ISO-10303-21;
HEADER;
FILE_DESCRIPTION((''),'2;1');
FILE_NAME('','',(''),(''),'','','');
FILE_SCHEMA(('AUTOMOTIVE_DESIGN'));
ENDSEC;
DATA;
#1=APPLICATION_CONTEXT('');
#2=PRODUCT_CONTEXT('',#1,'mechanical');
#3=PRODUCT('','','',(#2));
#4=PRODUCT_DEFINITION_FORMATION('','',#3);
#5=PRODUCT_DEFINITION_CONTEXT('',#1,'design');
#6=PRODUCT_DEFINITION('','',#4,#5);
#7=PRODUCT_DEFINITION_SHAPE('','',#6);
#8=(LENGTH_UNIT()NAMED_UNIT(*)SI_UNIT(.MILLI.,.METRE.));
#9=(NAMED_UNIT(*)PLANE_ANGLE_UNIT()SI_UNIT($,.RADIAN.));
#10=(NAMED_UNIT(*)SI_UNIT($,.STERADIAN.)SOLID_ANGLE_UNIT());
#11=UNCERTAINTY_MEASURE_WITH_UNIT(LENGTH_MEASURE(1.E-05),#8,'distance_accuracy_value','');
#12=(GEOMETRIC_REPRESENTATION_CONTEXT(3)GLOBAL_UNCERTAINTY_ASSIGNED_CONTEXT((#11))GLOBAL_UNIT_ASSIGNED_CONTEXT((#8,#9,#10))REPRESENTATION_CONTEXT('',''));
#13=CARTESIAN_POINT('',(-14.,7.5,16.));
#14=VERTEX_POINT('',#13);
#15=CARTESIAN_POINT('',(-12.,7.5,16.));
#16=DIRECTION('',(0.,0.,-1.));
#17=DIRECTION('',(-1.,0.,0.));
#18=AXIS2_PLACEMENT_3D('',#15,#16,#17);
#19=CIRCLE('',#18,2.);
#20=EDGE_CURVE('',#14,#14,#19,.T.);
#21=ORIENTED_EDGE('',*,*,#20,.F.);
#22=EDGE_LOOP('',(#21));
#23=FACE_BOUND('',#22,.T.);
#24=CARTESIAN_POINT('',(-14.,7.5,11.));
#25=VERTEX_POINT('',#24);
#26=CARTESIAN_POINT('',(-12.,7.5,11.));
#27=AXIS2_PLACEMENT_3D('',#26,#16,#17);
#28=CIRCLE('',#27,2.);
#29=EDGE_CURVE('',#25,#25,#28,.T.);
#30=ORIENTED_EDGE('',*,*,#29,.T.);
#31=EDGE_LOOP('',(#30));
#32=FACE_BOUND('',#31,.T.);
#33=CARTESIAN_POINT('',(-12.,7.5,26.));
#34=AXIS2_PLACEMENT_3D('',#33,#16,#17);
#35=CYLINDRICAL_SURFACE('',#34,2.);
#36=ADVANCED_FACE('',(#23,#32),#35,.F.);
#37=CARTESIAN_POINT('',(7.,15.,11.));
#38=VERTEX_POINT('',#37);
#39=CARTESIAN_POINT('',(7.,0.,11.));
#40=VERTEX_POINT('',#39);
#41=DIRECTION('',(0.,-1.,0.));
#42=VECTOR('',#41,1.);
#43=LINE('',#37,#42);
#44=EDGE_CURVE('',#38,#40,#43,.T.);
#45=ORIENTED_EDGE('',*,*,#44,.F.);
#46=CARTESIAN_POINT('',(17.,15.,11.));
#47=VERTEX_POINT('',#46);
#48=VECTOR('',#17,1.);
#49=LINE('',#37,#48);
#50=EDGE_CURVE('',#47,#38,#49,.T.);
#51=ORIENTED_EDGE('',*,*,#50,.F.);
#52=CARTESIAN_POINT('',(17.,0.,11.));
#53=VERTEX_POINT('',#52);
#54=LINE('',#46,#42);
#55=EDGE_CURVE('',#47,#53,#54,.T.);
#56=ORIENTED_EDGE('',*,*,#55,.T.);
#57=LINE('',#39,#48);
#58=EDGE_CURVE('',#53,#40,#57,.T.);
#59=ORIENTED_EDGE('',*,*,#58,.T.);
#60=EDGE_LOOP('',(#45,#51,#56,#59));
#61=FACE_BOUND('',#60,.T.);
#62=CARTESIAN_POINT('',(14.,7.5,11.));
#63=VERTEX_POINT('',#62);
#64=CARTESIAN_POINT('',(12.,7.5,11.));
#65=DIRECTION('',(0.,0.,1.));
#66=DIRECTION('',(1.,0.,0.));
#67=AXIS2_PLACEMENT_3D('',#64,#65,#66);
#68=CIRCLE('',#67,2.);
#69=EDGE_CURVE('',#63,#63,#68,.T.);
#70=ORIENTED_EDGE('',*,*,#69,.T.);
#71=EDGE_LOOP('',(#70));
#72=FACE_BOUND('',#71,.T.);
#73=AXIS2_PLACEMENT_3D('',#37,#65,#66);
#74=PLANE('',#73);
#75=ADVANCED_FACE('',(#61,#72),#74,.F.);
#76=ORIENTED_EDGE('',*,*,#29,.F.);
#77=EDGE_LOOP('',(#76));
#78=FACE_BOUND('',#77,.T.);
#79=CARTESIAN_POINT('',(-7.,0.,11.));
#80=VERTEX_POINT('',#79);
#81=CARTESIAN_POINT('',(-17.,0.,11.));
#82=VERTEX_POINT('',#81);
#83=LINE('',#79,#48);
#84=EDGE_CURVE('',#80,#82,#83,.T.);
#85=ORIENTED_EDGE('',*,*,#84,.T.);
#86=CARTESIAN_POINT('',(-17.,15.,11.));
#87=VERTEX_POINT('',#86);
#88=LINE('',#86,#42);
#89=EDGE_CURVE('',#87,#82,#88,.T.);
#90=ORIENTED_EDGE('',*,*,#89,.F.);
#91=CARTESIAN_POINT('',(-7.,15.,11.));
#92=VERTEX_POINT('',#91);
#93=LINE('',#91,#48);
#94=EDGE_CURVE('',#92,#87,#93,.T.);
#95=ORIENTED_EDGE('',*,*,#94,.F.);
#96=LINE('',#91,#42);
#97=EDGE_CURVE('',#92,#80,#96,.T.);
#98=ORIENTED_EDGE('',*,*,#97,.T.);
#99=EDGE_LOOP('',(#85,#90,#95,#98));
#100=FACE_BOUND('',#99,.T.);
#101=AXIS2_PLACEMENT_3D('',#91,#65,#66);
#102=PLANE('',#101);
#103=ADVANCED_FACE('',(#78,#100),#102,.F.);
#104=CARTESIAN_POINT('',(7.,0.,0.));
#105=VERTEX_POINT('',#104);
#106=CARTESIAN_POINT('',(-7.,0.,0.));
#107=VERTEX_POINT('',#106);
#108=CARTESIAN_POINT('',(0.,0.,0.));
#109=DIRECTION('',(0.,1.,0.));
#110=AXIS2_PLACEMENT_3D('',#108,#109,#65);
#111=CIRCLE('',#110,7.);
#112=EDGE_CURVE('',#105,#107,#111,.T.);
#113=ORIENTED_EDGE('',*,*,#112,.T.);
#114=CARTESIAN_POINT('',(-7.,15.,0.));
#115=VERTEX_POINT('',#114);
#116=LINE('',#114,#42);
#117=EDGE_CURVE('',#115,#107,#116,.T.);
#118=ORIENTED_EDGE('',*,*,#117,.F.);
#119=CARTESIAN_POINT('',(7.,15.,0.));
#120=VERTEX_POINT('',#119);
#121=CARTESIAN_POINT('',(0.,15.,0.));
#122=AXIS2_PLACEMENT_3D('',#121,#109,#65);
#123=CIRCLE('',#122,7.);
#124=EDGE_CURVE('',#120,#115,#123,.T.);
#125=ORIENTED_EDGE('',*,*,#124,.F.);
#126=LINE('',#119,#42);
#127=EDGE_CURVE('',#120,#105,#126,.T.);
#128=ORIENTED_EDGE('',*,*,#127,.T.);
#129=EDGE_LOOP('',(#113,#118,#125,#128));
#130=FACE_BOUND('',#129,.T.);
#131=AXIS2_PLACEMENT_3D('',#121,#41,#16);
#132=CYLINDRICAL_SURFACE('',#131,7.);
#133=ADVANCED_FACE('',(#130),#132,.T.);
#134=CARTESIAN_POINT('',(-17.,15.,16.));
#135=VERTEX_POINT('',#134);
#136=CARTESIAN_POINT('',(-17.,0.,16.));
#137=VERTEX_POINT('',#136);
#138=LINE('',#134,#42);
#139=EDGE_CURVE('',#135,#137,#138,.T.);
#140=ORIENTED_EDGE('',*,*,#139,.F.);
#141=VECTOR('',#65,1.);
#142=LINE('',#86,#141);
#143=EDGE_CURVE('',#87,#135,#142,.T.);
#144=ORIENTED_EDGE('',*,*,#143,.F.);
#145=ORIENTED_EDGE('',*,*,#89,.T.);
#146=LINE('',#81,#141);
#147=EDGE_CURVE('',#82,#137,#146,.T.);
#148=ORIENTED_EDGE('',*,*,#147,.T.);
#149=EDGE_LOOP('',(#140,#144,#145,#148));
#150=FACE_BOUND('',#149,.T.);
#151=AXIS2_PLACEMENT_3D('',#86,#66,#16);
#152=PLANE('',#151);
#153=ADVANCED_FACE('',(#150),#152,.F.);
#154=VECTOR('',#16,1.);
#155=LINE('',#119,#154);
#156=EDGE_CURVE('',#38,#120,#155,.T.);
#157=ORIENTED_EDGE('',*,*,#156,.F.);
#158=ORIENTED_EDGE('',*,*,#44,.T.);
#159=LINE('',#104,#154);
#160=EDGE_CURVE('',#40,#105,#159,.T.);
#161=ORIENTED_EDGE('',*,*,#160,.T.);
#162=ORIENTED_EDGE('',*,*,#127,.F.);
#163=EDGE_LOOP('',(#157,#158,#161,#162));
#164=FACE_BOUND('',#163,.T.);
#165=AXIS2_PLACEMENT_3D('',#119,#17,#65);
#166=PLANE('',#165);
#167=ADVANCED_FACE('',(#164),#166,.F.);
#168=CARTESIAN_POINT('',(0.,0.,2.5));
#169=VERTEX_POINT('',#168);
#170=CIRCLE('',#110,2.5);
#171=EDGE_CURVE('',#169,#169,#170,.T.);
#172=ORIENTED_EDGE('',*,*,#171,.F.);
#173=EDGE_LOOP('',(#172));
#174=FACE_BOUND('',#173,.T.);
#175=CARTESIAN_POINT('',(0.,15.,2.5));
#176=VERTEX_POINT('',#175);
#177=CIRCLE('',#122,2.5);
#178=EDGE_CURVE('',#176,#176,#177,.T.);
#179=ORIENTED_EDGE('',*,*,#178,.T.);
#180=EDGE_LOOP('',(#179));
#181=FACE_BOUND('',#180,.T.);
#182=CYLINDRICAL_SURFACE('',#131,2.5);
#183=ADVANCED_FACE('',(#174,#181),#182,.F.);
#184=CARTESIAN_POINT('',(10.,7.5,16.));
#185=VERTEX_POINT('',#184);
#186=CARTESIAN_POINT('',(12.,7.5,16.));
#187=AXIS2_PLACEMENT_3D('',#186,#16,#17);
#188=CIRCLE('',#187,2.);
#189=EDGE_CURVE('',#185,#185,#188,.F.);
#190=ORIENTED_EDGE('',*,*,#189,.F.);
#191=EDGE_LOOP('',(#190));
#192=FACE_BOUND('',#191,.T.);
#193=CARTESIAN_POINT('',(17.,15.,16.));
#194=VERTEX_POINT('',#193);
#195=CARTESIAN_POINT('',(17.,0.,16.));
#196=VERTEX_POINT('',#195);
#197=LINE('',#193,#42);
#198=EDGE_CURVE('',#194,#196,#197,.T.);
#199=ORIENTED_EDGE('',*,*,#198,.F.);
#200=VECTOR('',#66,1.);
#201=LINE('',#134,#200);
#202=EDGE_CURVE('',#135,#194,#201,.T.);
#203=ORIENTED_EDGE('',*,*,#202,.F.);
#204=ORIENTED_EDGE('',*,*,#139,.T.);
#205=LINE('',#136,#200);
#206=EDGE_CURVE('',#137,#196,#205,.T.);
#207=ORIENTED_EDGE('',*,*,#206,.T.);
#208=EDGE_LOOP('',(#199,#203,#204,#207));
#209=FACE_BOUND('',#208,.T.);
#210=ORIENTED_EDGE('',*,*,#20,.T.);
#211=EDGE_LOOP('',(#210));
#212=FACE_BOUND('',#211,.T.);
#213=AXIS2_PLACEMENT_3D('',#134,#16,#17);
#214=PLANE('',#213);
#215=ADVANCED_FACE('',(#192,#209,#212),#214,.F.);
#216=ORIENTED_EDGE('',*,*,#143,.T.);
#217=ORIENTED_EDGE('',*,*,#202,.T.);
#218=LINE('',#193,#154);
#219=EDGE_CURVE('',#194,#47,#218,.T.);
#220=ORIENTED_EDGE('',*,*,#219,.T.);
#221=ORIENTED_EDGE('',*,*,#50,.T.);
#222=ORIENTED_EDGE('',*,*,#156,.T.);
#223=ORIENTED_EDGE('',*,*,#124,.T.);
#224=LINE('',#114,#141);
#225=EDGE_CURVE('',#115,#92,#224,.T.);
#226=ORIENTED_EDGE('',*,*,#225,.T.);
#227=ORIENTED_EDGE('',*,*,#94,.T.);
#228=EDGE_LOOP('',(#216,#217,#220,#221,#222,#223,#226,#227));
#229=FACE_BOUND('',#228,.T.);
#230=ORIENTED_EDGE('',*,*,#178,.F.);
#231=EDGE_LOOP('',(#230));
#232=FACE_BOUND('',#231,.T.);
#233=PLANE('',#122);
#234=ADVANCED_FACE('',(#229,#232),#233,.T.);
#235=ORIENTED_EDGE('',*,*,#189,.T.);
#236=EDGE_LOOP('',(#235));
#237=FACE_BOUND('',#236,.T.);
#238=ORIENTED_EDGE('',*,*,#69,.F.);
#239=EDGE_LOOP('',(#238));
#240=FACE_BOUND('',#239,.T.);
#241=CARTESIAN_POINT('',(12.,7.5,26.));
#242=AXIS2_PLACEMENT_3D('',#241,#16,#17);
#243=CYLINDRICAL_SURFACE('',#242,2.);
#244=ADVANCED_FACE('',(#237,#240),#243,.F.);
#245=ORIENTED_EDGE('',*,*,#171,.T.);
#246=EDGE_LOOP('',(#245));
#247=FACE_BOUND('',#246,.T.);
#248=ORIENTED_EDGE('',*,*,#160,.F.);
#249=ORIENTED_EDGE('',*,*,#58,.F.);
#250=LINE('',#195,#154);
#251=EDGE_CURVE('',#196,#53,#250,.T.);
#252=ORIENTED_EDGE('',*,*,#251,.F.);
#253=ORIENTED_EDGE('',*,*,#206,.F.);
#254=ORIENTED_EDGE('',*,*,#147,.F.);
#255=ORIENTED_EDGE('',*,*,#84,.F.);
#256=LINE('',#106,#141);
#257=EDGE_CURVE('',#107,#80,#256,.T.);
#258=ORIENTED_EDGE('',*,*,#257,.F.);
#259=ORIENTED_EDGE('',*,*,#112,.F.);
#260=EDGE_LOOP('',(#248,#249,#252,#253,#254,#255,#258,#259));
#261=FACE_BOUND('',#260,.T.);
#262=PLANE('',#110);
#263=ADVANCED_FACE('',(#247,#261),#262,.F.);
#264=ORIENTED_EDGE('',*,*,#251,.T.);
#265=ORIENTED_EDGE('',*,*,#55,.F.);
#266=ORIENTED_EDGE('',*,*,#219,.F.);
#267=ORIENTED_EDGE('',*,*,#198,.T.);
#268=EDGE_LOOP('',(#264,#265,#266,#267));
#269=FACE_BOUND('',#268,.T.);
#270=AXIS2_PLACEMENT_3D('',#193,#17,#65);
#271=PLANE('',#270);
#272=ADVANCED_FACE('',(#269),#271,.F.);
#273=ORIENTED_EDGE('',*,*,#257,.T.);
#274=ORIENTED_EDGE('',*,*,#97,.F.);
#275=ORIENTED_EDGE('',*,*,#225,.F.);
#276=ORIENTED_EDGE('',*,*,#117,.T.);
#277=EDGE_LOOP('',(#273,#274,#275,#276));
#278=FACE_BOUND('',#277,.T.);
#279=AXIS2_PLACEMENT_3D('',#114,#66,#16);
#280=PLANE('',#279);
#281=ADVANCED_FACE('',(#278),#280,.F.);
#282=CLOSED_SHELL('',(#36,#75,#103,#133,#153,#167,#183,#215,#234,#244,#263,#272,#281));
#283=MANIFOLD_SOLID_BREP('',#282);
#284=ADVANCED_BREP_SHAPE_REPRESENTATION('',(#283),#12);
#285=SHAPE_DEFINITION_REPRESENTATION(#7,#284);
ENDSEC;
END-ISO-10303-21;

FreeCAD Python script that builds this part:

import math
import FreeCAD as App
import Part
import Sketcher

V = App.Vector
Q = App.Units.Quantity

doc = App.newDocument("Part")
body = doc.addObject("PartDesign::Body", "Body")

# Sketch on XZ plane
sketch1 = body.newObject("Sketcher::SketchObject", "Sketch")
sketch1.AttachmentSupport = (doc.getObject("XZ_Plane"), [""])
sketch1.MapMode = "FlatFace"
sketch1.addGeometry([
    Part.LineSegment(V(-7, 0, 0), V(-7, 11, 0)),  # 0
    Part.LineSegment(V(-7, 11, 0), V(-17, 11, 0)),  # 1
    Part.LineSegment(V(-17, 11, 0), V(-17, 16, 0)),  # 2
    Part.LineSegment(V(-17, 16, 0), V(17, 16, 0)),  # 3
    Part.LineSegment(V(17, 16, 0), V(17, 11, 0)),  # 4
    Part.LineSegment(V(17, 11, 0), V(7, 11, 0)),  # 5
    Part.LineSegment(V(7, 11, 0), V(7, 0, 0)),  # 6
    Part.ArcOfCircle(Part.Circle(V(0, 0, 0), V(0, 0, 1), 7), math.radians(180), math.radians(360)),  # 7
    Part.Circle(V(0, 0, 0), V(0, 0, 1), 2.5),  # 8
], False)
sketch1.addConstraint([
    Sketcher.Constraint("Coincident", 0, 2, 1, 1),
    Sketcher.Constraint("Coincident", 1, 2, 2, 1),
    Sketcher.Constraint("Coincident", 2, 2, 3, 1),
    Sketcher.Constraint("Coincident", 3, 2, 4, 1),
    Sketcher.Constraint("Coincident", 4, 2, 5, 1),
    Sketcher.Constraint("Coincident", 5, 2, 6, 1),
    Sketcher.Constraint("Tangent", 6, 2, 7, 2),
    Sketcher.Constraint("Tangent", 7, 1, 0, 1),
    Sketcher.Constraint("Vertical", 0),
    Sketcher.Constraint("Horizontal", 1),
    Sketcher.Constraint("Vertical", 2),
    Sketcher.Constraint("Horizontal", 3),
    Sketcher.Constraint("Vertical", 4),
    Sketcher.Constraint("Horizontal", 5),
    Sketcher.Constraint("Vertical", 6),
    Sketcher.Constraint("Coincident", 7, 3, -1, 1),
    Sketcher.Constraint("Coincident", 8, 3, -1, 1),
    Sketcher.Constraint("Symmetric", 1, 2, 4, 2, -2),
    Sketcher.Constraint("Diameter", 8, Q("5 mm")),
    Sketcher.Constraint("Radius", 7, Q("7 mm")),
    Sketcher.Constraint("DistanceX", 1, 2, 1, 1, Q("10 mm")),
    Sketcher.Constraint("DistanceY", 0, 1, 0, 2, Q("11 mm")),
    Sketcher.Constraint("DistanceY", 2, 1, 2, 2, Q("5 mm")),
])
pad1 = body.newObject("PartDesign::Pad", "Pad")
pad1.Profile = sketch1
pad1.Length = 15
pad1.Reversed = True

# Sketch on XY plane
sketch2 = body.newObject("Sketcher::SketchObject", "Sketch001")
sketch2.AttachmentSupport = (doc.getObject("XY_Plane"), [""])
sketch2.MapMode = "FlatFace"
sketch2.AttachmentOffset = App.Placement(V(0, 0, 11), App.Rotation())
sketch2.addGeometry(Part.Circle(V(-12, 7.5, 0), V(0, 0, 1), 2), False)
sketch2.addConstraint([
    Sketcher.Constraint("Diameter", 0, Q("4 mm")),
    Sketcher.Constraint("DistanceX", 0, 3, -1, 1, Q("12 mm")),
    Sketcher.Constraint("DistanceY", -1, 1, 0, 3, Q("7.5 mm")),
])
pocket1 = body.newObject("PartDesign::Pocket", "Pocket")
pocket1.Profile = sketch2
pocket1.Length = 15
pocket1.Reversed = True
doc.recompute()

mirrored = body.newObject("PartDesign::Mirrored", "Mirrored")
mirrored.Originals = [pocket1]
mirrored.MirrorPlane = (doc.getObject("YZ_Plane"), [""])
body.Tip = mirrored

doc.recompute()
